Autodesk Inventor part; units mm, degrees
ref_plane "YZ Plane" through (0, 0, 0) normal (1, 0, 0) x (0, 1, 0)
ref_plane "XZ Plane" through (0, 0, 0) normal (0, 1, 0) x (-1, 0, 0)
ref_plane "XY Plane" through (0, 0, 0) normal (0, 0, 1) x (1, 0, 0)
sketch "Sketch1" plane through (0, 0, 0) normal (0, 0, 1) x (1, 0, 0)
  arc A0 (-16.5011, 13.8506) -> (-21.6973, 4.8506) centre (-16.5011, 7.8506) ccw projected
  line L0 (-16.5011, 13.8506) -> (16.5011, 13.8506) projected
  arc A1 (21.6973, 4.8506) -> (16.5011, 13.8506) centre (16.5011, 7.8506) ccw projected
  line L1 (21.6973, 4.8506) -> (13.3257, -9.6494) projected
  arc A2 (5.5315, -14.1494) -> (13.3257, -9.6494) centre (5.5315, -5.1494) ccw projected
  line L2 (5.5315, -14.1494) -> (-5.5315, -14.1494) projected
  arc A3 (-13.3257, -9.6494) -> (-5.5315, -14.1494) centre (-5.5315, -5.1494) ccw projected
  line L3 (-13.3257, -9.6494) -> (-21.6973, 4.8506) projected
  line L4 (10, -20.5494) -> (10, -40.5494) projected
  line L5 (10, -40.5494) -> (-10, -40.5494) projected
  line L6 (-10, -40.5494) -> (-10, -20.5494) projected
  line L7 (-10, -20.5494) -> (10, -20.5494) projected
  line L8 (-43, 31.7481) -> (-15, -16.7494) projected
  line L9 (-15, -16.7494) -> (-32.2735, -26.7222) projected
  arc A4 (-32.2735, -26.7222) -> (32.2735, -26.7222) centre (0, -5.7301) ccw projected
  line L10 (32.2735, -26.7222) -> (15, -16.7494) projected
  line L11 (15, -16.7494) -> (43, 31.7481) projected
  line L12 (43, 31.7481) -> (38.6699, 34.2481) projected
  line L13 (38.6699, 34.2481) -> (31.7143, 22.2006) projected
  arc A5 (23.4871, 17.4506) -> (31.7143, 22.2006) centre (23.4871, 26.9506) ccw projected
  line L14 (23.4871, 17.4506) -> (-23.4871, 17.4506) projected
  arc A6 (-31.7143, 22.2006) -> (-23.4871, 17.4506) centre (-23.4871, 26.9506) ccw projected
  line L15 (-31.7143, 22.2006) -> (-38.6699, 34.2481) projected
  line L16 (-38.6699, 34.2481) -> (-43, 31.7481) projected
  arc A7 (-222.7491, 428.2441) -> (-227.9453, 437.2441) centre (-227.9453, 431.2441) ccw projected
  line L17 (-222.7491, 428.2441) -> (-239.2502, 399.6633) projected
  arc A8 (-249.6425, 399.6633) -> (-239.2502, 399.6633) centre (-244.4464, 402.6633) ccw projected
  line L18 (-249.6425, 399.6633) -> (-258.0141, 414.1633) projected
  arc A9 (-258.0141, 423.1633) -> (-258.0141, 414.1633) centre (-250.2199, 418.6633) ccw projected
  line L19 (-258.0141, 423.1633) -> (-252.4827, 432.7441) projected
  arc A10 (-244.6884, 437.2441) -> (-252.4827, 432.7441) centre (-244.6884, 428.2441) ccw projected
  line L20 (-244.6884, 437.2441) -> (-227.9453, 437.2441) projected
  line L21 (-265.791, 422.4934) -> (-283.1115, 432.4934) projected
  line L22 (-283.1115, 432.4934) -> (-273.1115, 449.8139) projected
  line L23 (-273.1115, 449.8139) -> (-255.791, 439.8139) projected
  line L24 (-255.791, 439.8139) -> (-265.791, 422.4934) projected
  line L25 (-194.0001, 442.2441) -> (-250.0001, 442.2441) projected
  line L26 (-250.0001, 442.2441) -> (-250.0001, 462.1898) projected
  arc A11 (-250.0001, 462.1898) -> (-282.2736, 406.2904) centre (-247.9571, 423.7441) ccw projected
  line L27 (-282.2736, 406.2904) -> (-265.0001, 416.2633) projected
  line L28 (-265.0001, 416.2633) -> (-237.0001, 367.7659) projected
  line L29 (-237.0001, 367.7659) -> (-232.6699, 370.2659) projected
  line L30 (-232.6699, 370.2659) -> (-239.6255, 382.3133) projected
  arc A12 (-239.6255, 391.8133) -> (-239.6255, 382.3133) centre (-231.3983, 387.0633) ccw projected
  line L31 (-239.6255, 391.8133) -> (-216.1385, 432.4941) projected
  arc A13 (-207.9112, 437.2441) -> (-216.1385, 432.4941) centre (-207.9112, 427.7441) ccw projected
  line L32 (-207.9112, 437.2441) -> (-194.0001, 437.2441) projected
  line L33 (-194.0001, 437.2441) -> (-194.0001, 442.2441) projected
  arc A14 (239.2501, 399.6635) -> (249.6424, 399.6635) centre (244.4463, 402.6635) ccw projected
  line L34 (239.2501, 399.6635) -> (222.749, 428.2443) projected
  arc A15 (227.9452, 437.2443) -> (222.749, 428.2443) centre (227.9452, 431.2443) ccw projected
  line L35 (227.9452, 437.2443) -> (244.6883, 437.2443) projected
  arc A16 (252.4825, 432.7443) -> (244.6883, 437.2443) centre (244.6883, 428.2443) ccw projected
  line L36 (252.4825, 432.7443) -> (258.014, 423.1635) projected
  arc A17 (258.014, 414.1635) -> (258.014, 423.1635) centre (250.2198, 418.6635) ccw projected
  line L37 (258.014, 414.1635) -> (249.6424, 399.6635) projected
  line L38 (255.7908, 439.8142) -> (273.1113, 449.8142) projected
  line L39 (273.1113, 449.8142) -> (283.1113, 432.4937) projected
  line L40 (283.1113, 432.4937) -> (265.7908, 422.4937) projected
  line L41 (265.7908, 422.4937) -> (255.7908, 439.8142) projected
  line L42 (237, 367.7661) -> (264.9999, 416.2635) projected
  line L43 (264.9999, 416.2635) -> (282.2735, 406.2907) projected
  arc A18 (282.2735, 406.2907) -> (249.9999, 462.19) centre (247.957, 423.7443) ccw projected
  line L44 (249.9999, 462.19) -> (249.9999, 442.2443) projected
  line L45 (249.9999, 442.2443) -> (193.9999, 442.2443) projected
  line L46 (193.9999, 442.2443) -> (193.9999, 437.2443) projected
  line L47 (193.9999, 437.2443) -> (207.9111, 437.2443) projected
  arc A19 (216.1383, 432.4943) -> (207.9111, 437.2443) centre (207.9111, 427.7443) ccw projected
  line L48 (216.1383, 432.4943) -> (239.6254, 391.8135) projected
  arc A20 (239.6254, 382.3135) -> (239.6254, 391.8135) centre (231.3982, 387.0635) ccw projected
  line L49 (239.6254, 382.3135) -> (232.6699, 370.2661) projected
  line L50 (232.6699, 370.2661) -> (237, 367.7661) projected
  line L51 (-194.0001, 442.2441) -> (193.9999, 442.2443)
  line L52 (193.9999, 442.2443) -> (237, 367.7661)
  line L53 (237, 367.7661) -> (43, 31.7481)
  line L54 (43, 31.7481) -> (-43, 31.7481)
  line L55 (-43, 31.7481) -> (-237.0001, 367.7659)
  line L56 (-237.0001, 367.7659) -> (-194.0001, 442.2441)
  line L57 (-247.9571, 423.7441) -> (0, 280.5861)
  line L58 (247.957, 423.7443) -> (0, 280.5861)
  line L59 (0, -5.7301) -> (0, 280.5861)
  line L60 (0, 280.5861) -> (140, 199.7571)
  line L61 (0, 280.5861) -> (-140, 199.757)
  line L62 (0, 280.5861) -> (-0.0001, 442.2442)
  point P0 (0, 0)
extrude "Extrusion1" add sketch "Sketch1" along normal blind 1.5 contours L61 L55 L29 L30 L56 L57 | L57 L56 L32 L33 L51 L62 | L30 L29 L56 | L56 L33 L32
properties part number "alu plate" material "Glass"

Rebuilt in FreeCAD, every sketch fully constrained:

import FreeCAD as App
import Part
import Sketcher

V = App.Vector
Q = App.Units.Quantity

doc = App.newDocument("Part")
body = doc.addObject("PartDesign::Body", "Body")

# Sketch on XY plane
sketch1 = doc.addObject("Sketcher::SketchObject", "Sketch")
body.addObject(sketch1)
sketch1.AttachmentSupport = (doc.XY_Plane, [""])
sketch1.MapMode = "FlatFace"
sketch1.addGeometry([
    Part.LineSegment(V(-140, 200, 0), V(0, 281, 0)),  # 0
    Part.LineSegment(V(0, 281, 0), V(0, 442, 0)),  # 1
    Part.LineSegment(V(0, 442, 0), V(-194, 442, 0)),  # 2
    Part.LineSegment(V(-194, 442, 0), V(-237, 368, 0)),  # 3
    Part.LineSegment(V(-237, 368, 0), V(-140, 200, 0)),  # 4
], False)
sketch1.addConstraint([
    Sketcher.Constraint("Coincident", 0, 2, 1, 1),
    Sketcher.Constraint("Coincident", 1, 2, 2, 1),
    Sketcher.Constraint("Coincident", 2, 2, 3, 1),
    Sketcher.Constraint("Coincident", 3, 2, 4, 1),
    Sketcher.Constraint("Coincident", 4, 2, 0, 1),
    Sketcher.Constraint("Vertical", 1),
    Sketcher.Constraint("Horizontal", 2),
    Sketcher.Constraint("PointOnObject", 0, 2, -2),
    Sketcher.Constraint("Perpendicular", 0, 4),
    Sketcher.Constraint("DistanceX", 2, 2, 2, 1, 194.0),
    Sketcher.Constraint("Angle", 0, Q("30 deg")),
    Sketcher.Constraint("Angle", 3, Q("-120 deg")),
    Sketcher.Constraint("Distance", 3, 86.0),
    Sketcher.Constraint("Distance", 4, 194.0),
    Sketcher.Constraint("DistanceY", -1, 1, 0, 2, 280.586),
])
pad1 = doc.addObject("PartDesign::Pad", "Pad")
body.addObject(pad1)
pad1.Profile = sketch1
pad1.Length = 1.5

doc.recompute()
